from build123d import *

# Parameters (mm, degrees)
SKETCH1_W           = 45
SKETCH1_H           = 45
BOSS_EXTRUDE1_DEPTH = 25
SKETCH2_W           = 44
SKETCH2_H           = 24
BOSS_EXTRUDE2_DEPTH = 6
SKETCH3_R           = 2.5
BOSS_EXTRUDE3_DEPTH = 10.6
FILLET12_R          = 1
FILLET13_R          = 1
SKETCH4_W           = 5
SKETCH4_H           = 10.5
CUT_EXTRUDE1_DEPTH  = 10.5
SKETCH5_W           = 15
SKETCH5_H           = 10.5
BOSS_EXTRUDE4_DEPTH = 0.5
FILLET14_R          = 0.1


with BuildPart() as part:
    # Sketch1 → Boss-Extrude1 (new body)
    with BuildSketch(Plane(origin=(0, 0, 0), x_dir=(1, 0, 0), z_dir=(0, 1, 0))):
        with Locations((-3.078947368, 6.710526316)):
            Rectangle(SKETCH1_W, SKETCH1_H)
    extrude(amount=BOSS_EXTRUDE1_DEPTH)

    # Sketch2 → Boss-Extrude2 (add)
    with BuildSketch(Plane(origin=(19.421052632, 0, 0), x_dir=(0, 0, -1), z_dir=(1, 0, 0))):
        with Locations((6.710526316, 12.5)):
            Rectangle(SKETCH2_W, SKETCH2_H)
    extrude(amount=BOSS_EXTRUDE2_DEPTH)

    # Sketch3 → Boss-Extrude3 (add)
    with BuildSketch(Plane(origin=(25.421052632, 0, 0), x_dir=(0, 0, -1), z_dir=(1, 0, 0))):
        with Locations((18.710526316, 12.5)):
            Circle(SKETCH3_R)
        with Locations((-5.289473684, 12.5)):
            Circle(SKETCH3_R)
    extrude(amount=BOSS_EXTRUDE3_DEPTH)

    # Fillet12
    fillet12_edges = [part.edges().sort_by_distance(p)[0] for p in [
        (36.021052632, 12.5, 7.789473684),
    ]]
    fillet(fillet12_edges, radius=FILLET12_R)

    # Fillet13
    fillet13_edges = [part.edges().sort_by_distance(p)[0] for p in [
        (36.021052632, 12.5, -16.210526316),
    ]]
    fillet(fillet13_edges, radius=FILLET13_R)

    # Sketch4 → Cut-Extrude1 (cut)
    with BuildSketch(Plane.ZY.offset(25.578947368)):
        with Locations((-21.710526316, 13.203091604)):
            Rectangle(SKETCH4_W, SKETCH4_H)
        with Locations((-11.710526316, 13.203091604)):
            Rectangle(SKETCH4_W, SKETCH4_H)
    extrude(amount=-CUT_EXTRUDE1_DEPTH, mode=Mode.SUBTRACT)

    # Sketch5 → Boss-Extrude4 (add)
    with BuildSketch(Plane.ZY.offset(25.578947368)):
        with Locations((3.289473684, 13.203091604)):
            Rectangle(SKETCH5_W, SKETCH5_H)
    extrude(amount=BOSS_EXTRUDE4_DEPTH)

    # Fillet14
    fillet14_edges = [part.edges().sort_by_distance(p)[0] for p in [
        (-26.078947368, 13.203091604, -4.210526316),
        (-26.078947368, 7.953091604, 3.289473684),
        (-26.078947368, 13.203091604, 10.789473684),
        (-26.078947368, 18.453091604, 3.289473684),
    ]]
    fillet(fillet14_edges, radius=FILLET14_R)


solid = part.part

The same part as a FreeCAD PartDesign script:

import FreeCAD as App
import Part
import Sketcher
Q = App.Units.Quantity


def edges_at(feature, points):
    """Names of the edges that pass closest to the given points."""
    edges = feature.Shape.Edges
    near = lambda p: min(range(len(edges)), key=lambda i: edges[i].distToShape(Part.Vertex(*p))[0])
    return sorted({f"Edge{near(p) + 1}" for p in points})

doc = App.newDocument("Part")
body = doc.addObject("PartDesign::Body", "Body")

# Sketch on XZ plane
sketch1 = body.newObject("Sketcher::SketchObject", "Sketch")
sketch1.AttachmentSupport = (doc.getObject("XZ_Plane"), [""])
sketch1.MapMode = "FlatFace"
sketch1.addGeometry([
    Part.LineSegment(App.Vector(-25.578947, -29.210526, 0), App.Vector(-25.578947, 15.789474, 0)),
    Part.LineSegment(App.Vector(-25.578947, 15.789474, 0), App.Vector(19.421053, 15.789474, 0)),
    Part.LineSegment(App.Vector(19.421053, 15.789474, 0), App.Vector(19.421053, -29.210526, 0)),
    Part.LineSegment(App.Vector(19.421053, -29.210526, 0), App.Vector(-25.578947, -29.210526, 0)),
], False)
sketch1.addConstraint([
    Sketcher.Constraint("Coincident", 0, 2, 1, 1),
    Sketcher.Constraint("Coincident", 1, 2, 2, 1),
    Sketcher.Constraint("Coincident", 2, 2, 3, 1),
    Sketcher.Constraint("Coincident", 3, 2, 0, 1),
    Sketcher.Constraint("Vertical", 0),
    Sketcher.Constraint("Horizontal", 1),
    Sketcher.Constraint("Vertical", 2),
    Sketcher.Constraint("Horizontal", 3),
    Sketcher.Constraint("Equal", 3, 0),
    Sketcher.Constraint("DistanceX", 1, 1, 1, 2, Q("45 mm")),
    Sketcher.Constraint("DistanceX", 0, 2, -1, 1, Q("25.578947 mm")),
    Sketcher.Constraint("DistanceY", -1, 1, 0, 2, Q("15.789474 mm")),
])
pad1 = body.newObject("PartDesign::Pad", "Pad")
pad1.Profile = sketch1
pad1.Length = 25
pad1.Reversed = True

# Sketch on YZ plane
sketch2 = body.newObject("Sketcher::SketchObject", "Sketch001")
sketch2.AttachmentSupport = (doc.getObject("YZ_Plane"), [""])
sketch2.MapMode = "FlatFace"
sketch2.AttachmentOffset = App.Placement(App.Vector(0, 0, 19.421053), App.Rotation())
sketch2.addGeometry([
    Part.LineSegment(App.Vector(24.5, 15.289474, 0), App.Vector(0.5, 15.289474, 0)),
    Part.LineSegment(App.Vector(0.5, 15.289474, 0), App.Vector(0.5, -28.710526, 0)),
    Part.LineSegment(App.Vector(0.5, -28.710526, 0), App.Vector(24.5, -28.710526, 0)),
    Part.LineSegment(App.Vector(24.5, -28.710526, 0), App.Vector(24.5, 15.289474, 0)),
], False)
sketch2.addConstraint([
    Sketcher.Constraint("Coincident", 0, 2, 1, 1),
    Sketcher.Constraint("Coincident", 1, 2, 2, 1),
    Sketcher.Constraint("Coincident", 2, 2, 3, 1),
    Sketcher.Constraint("Coincident", 3, 2, 0, 1),
    Sketcher.Constraint("Horizontal", 0),
    Sketcher.Constraint("Vertical", 1),
    Sketcher.Constraint("Horizontal", 2),
    Sketcher.Constraint("Vertical", 3),
    Sketcher.Constraint("DistanceX", 0, 2, 0, 1, Q("24 mm")),
    Sketcher.Constraint("DistanceY", 1, 2, 1, 1, Q("44 mm")),
    Sketcher.Constraint("DistanceX", -1, 1, 0, 2, Q("0.5 mm")),
    Sketcher.Constraint("DistanceY", -1, 1, 0, 2, Q("15.289474 mm")),
])
pad2 = body.newObject("PartDesign::Pad", "Pad001")
pad2.Profile = sketch2
pad2.Length = 6

# Sketch on YZ plane
sketch3 = body.newObject("Sketcher::SketchObject", "Sketch002")
sketch3.AttachmentSupport = (doc.getObject("YZ_Plane"), [""])
sketch3.MapMode = "FlatFace"
sketch3.AttachmentOffset = App.Placement(App.Vector(0, 0, 25.421053), App.Rotation())
sketch3.addGeometry([
    Part.Circle(App.Vector(12.5, -18.710526, 0), App.Vector(0, 0, 1), 2.5),
    Part.Circle(App.Vector(12.5, 5.289474, 0), App.Vector(0, 0, 1), 2.5),
], False)
sketch3.addConstraint([
    Sketcher.Constraint("Equal", 0, 1),
    Sketcher.Constraint("Vertical", 0, 3, 1, 3),
    Sketcher.Constraint("Diameter", 0, Q("5 mm")),
    Sketcher.Constraint("DistanceY", 0, 3, 1, 3, Q("24 mm")),
    Sketcher.Constraint("DistanceX", -1, 1, 0, 3, Q("12.5 mm")),
    Sketcher.Constraint("DistanceY", 0, 3, -1, 1, Q("18.710526 mm")),
])
pad3 = body.newObject("PartDesign::Pad", "Pad002")
pad3.Profile = sketch3
pad3.Length = 10.6
doc.recompute()

fillet = body.newObject("PartDesign::Fillet", "Fillet")
fillet.Base = (pad3, edges_at(pad3, [(36.021, 12.5, 7.789)]))
fillet.Radius = 1
doc.recompute()

fillet2 = body.newObject("PartDesign::Fillet", "Fillet001")
fillet2.Base = (fillet, edges_at(fillet, [(36.021, 12.5, -16.211)]))
fillet2.Radius = 1

# Sketch on YZ plane
sketch4 = body.newObject("Sketcher::SketchObject", "Sketch003")
sketch4.AttachmentSupport = (doc.getObject("YZ_Plane"), [""])
sketch4.MapMode = "FlatFace"
sketch4.AttachmentOffset = App.Placement(App.Vector(0, 0, -25.578947), App.Rotation())
sketch4.addGeometry([
    Part.LineSegment(App.Vector(18.453092, -24.210526, 0), App.Vector(7.953092, -24.210526, 0)),  # 0
    Part.LineSegment(App.Vector(7.953092, -24.210526, 0), App.Vector(7.953092, -19.210526, 0)),  # 1
    Part.LineSegment(App.Vector(7.953092, -19.210526, 0), App.Vector(18.453092, -19.210526, 0)),  # 2
    Part.LineSegment(App.Vector(18.453092, -19.210526, 0), App.Vector(18.453092, -24.210526, 0)),  # 3
    Part.LineSegment(App.Vector(18.453092, -14.210526, 0), App.Vector(7.953092, -14.210526, 0)),  # 4
    Part.LineSegment(App.Vector(7.953092, -14.210526, 0), App.Vector(7.953092, -9.210526, 0)),  # 5
    Part.LineSegment(App.Vector(7.953092, -9.210526, 0), App.Vector(18.453092, -9.210526, 0)),  # 6
    Part.LineSegment(App.Vector(18.453092, -9.210526, 0), App.Vector(18.453092, -14.210526, 0)),  # 7
], False)
sketch4.addConstraint([
    Sketcher.Constraint("Coincident", 0, 2, 1, 1),
    Sketcher.Constraint("Coincident", 1, 2, 2, 1),
    Sketcher.Constraint("Coincident", 2, 2, 3, 1),
    Sketcher.Constraint("Coincident", 3, 2, 0, 1),
    Sketcher.Constraint("Coincident", 4, 2, 5, 1),
    Sketcher.Constraint("Coincident", 5, 2, 6, 1),
    Sketcher.Constraint("Coincident", 6, 2, 7, 1),
    Sketcher.Constraint("Coincident", 7, 2, 4, 1),
    Sketcher.Constraint("Horizontal", 0),
    Sketcher.Constraint("Vertical", 1),
    Sketcher.Constraint("Horizontal", 2),
    Sketcher.Constraint("Vertical", 3),
    Sketcher.Constraint("Horizontal", 4),
    Sketcher.Constraint("Vertical", 5),
    Sketcher.Constraint("Horizontal", 6),
    Sketcher.Constraint("Vertical", 7),
    Sketcher.Constraint("Vertical", 1, 2, 4, 2),
    Sketcher.Constraint("Vertical", 3, 2, 6, 2),
    Sketcher.Constraint("Equal", 3, 5),
    Sketcher.Constraint("DistanceY", 1, 1, 1, 2, Q("5 mm")),
    Sketcher.Constraint("DistanceX", 0, 2, 0, 1, Q("10.5 mm")),
    Sketcher.Constraint("DistanceY", 1, 2, 4, 2, Q("5 mm")),
    Sketcher.Constraint("DistanceX", -1, 1, 0, 2, Q("7.953092 mm")),
    Sketcher.Constraint("DistanceY", 0, 2, -1, 1, Q("24.210526 mm")),
])
pocket1 = body.newObject("PartDesign::Pocket", "Pocket")
pocket1.Profile = sketch4
pocket1.Length = 10.5
pocket1.Reversed = True

# Sketch on YZ plane
sketch5 = body.newObject("Sketcher::SketchObject", "Sketch004")
sketch5.AttachmentSupport = (doc.getObject("YZ_Plane"), [""])
sketch5.MapMode = "FlatFace"
sketch5.AttachmentOffset = App.Placement(App.Vector(0, 0, -25.578947), App.Rotation())
sketch5.addGeometry([
    Part.LineSegment(App.Vector(18.453092, -4.210526, 0), App.Vector(7.953092, -4.210526, 0)),
    Part.LineSegment(App.Vector(7.953092, -4.210526, 0), App.Vector(7.953092, 10.789474, 0)),
    Part.LineSegment(App.Vector(7.953092, 10.789474, 0), App.Vector(18.453092, 10.789474, 0)),
    Part.LineSegment(App.Vector(18.453092, 10.789474, 0), App.Vector(18.453092, -4.210526, 0)),
], False)
sketch5.addConstraint([
    Sketcher.Constraint("Coincident", 0, 2, 1, 1),
    Sketcher.Constraint("Coincident", 1, 2, 2, 1),
    Sketcher.Constraint("Coincident", 2, 2, 3, 1),
    Sketcher.Constraint("Coincident", 3, 2, 0, 1),
    Sketcher.Constraint("Horizontal", 0),
    Sketcher.Constraint("Vertical", 1),
    Sketcher.Constraint("Horizontal", 2),
    Sketcher.Constraint("Vertical", 3),
    Sketcher.Constraint("DistanceY", 1, 1, 1, 2, Q("15 mm")),
    Sketcher.Constraint("DistanceX", 0, 2, 0, 1, Q("10.5 mm")),
    Sketcher.Constraint("DistanceX", -1, 1, 0, 2, Q("7.953092 mm")),
    Sketcher.Constraint("DistanceY", 0, 2, -1, 1, Q("4.210526 mm")),
])
pad4 = body.newObject("PartDesign::Pad", "Pad003")
pad4.Profile = sketch5
pad4.Length = 0.5
pad4.Reversed = True
doc.recompute()

fillet3 = body.newObject("PartDesign::Fillet", "Fillet002")
fillet3.Base = (pad4, edges_at(pad4, [
    (-26.079, 13.203, -4.211),
    (-26.079, 7.953, 3.289),
    (-26.079, 13.203, 10.789),
    (-26.079, 18.453, 3.289),
]))
fillet3.Radius = 0.1

doc.recompute()
